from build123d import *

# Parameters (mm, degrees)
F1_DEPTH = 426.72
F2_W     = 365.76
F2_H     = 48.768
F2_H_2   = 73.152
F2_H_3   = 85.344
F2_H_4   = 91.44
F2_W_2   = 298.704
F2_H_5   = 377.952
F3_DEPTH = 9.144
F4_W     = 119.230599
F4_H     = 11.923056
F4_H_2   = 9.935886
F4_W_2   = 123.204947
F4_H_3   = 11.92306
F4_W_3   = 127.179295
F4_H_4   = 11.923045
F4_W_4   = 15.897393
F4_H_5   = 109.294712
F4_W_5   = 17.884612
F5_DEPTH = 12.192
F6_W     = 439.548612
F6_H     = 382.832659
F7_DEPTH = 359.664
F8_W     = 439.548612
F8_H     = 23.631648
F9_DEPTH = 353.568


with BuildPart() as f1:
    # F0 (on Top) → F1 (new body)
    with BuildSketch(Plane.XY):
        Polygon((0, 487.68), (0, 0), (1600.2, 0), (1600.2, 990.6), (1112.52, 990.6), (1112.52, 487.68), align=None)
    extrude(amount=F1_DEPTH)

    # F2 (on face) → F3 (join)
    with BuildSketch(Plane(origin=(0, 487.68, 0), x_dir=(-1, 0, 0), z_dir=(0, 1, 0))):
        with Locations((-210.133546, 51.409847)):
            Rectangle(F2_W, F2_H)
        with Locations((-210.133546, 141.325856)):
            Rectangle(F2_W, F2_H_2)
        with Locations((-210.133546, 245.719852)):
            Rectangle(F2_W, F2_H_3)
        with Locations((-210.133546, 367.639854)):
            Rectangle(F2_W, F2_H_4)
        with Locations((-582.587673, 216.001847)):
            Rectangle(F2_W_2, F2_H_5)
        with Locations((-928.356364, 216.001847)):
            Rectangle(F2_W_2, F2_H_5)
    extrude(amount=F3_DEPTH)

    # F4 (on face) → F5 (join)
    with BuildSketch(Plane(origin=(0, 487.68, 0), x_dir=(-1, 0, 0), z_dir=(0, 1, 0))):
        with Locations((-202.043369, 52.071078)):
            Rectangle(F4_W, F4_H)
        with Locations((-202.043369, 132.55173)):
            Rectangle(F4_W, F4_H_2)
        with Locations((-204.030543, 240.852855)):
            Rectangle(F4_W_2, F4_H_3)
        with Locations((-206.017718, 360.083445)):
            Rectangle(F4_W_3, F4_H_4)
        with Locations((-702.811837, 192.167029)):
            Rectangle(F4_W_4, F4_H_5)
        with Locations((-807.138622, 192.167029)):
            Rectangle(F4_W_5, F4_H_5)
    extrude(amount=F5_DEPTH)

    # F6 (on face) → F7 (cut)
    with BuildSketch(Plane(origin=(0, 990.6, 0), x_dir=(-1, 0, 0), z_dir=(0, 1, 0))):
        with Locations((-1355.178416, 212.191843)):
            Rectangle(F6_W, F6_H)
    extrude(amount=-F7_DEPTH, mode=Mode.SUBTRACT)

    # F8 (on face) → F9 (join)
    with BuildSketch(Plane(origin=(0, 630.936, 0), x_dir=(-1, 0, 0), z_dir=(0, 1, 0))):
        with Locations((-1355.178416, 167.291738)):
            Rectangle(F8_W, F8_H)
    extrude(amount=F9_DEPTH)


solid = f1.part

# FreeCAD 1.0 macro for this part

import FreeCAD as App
import Part
import Sketcher
Q = App.Units.Quantity

doc = App.newDocument("Part")
params = doc.addObject("Spreadsheet::Sheet", "Params")
for row, (alias, value) in enumerate([
    ("sketch1_width", "63 in"),
    ("sketch1_height", "39 in"),
    ("sketch1_width2", "19.2 in"),
    ("pad1_length", "16.8 in"),
    ("sketch2_width", "14.4 in"),
    ("sketch2_height", "3.6 in"),
    ("sketch2_width2", "11.76 in"),
    ("sketch2_height2", "1.92 in"),
    ("sketch2_height3", "2.88 in"),
    ("pad2_length", "0.36 in"),
    ("pad3_length", "0.48 in"),
    ("pocket1_length", "14.16 in"),
    ("pad4_length", "13.92 in"),
], start=1):
    params.set(f"A{row}", alias)
    params.set(f"B{row}", "=" + value)
    params.setAlias(f"B{row}", alias)

body = doc.addObject("PartDesign::Body", "Body")

sketch1 = body.newObject("Sketcher::SketchObject", "Sketch")
sketch1.AttachmentSupport = (doc.getObject("XY_Plane"), [""])
sketch1.MapMode = "FlatFace"
sketch1.addGeometry([
    Part.LineSegment(App.Vector(0, 488, 0), App.Vector(0, 0, 0)),
    Part.LineSegment(App.Vector(0, 0, 0), App.Vector(1600, 0, 0)),
    Part.LineSegment(App.Vector(1600, 0, 0), App.Vector(1600, 991, 0)),
    Part.LineSegment(App.Vector(1600, 991, 0), App.Vector(1113, 991, 0)),
    Part.LineSegment(App.Vector(1113, 991, 0), App.Vector(1113, 488, 0)),
    Part.LineSegment(App.Vector(1113, 488, 0), App.Vector(0, 488, 0)),
], False)
sketch1.addConstraint([
    Sketcher.Constraint("Coincident", 0, 2, 1, 1),
    Sketcher.Constraint("Coincident", 1, 2, 2, 1),
    Sketcher.Constraint("Coincident", 2, 2, 3, 1),
    Sketcher.Constraint("Coincident", 3, 2, 4, 1),
    Sketcher.Constraint("Coincident", 4, 2, 5, 1),
    Sketcher.Constraint("Coincident", 5, 2, 0, 1),
    Sketcher.Constraint("Vertical", 0),
    Sketcher.Constraint("Horizontal", 1),
    Sketcher.Constraint("Vertical", 2),
    Sketcher.Constraint("Horizontal", 3),
    Sketcher.Constraint("Vertical", 4),
    Sketcher.Constraint("Horizontal", 5),
    Sketcher.Constraint("Coincident", 0, 2, -1, 1),
    Sketcher.Constraint("Equal", 3, 0),
    Sketcher.Constraint("DistanceX", 1, 1, 1, 2, Q("63 in")),
    Sketcher.Constraint("DistanceY", 2, 1, 2, 2, Q("39 in")),
    Sketcher.Constraint("DistanceX", 3, 2, 3, 1, Q("19.2 in")),
])
sketch1.setExpression("Constraints[14]", "Params.sketch1_width")
sketch1.setExpression("Constraints[15]", "Params.sketch1_height")
sketch1.setExpression("Constraints[16]", "Params.sketch1_width2")
pad1 = body.newObject("PartDesign::Pad", "Pad")
pad1.Profile = sketch1
pad1.setExpression("Length", "Params.pad1_length")

sketch2 = body.newObject("Sketcher::SketchObject", "Sketch001")
sketch2.AttachmentSupport = (doc.getObject("XZ_Plane"), [""])
sketch2.MapMode = "FlatFace"
sketch2.AttachmentOffset = App.Placement(App.Vector(0, 0, -19.2 * 25.4), App.Rotation())
sketch2.addGeometry([
    Part.LineSegment(App.Vector(393, 76, 0), App.Vector(393, 27, 0)),
    Part.LineSegment(App.Vector(393, 27, 0), App.Vector(27, 27, 0)),
    Part.LineSegment(App.Vector(27, 27, 0), App.Vector(27, 76, 0)),
    Part.LineSegment(App.Vector(27, 76, 0), App.Vector(393, 76, 0)),
    Part.LineSegment(App.Vector(393, 178, 0), App.Vector(393, 105, 0)),
    Part.LineSegment(App.Vector(393, 105, 0), App.Vector(27, 105, 0)),
    Part.LineSegment(App.Vector(27, 105, 0), App.Vector(27, 178, 0)),
    Part.LineSegment(App.Vector(27, 178, 0), App.Vector(393, 178, 0)),
    Part.LineSegment(App.Vector(393, 288, 0), App.Vector(393, 203, 0)),
    Part.LineSegment(App.Vector(393, 203, 0), App.Vector(27, 203, 0)),
    Part.LineSegment(App.Vector(27, 203, 0), App.Vector(27, 288, 0)),
    Part.LineSegment(App.Vector(27, 288, 0), App.Vector(393, 288, 0)),
    Part.LineSegment(App.Vector(393, 413, 0), App.Vector(393, 322, 0)),
    Part.LineSegment(App.Vector(393, 322, 0), App.Vector(27, 322, 0)),
    Part.LineSegment(App.Vector(27, 322, 0), App.Vector(27, 413, 0)),
    Part.LineSegment(App.Vector(27, 413, 0), App.Vector(393, 413, 0)),
    Part.LineSegment(App.Vector(732, 405, 0), App.Vector(732, 27, 0)),
    Part.LineSegment(App.Vector(732, 27, 0), App.Vector(433, 27, 0)),
    Part.LineSegment(App.Vector(433, 27, 0), App.Vector(433, 405, 0)),
    Part.LineSegment(App.Vector(433, 405, 0), App.Vector(732, 405, 0)),
    Part.LineSegment(App.Vector(1078, 405, 0), App.Vector(1078, 27, 0)),
    Part.LineSegment(App.Vector(1078, 27, 0), App.Vector(779, 27, 0)),
    Part.LineSegment(App.Vector(779, 27, 0), App.Vector(779, 405, 0)),
    Part.LineSegment(App.Vector(779, 405, 0), App.Vector(1078, 405, 0)),
], False)
sketch2.addConstraint([
    Sketcher.Constraint("Coincident", 0, 2, 1, 1),
    Sketcher.Constraint("Coincident", 1, 2, 2, 1),
    Sketcher.Constraint("Coincident", 2, 2, 3, 1),
    Sketcher.Constraint("Coincident", 3, 2, 0, 1),
    Sketcher.Constraint("Coincident", 4, 2, 5, 1),
    Sketcher.Constraint("Coincident", 5, 2, 6, 1),
    Sketcher.Constraint("Coincident", 6, 2, 7, 1),
    Sketcher.Constraint("Coincident", 7, 2, 4, 1),
    Sketcher.Constraint("Coincident", 8, 2, 9, 1),
    Sketcher.Constraint("Coincident", 9, 2, 10, 1),
    Sketcher.Constraint("Coincident", 10, 2, 11, 1),
    Sketcher.Constraint("Coincident", 11, 2, 8, 1),
    Sketcher.Constraint("Coincident", 12, 2, 13, 1),
    Sketcher.Constraint("Coincident", 13, 2, 14, 1),
    Sketcher.Constraint("Coincident", 14, 2, 15, 1),
    Sketcher.Constraint("Coincident", 15, 2, 12, 1),
    Sketcher.Constraint("Coincident", 16, 2, 17, 1),
    Sketcher.Constraint("Coincident", 17, 2, 18, 1),
    Sketcher.Constraint("Coincident", 18, 2, 19, 1),
    Sketcher.Constraint("Coincident", 19, 2, 16, 1),
    Sketcher.Constraint("Coincident", 20, 2, 21, 1),
    Sketcher.Constraint("Coincident", 21, 2, 22, 1),
    Sketcher.Constraint("Coincident", 22, 2, 23, 1),
    Sketcher.Constraint("Coincident", 23, 2, 20, 1),
    Sketcher.Constraint("Vertical", 0),
    Sketcher.Constraint("Horizontal", 1),
    Sketcher.Constraint("Vertical", 2),
    Sketcher.Constraint("Horizontal", 3),
    Sketcher.Constraint("Vertical", 4),
    Sketcher.Constraint("Horizontal", 5),
    Sketcher.Constraint("Vertical", 6),
    Sketcher.Constraint("Horizontal", 7),
    Sketcher.Constraint("Vertical", 8),
    Sketcher.Constraint("Horizontal", 9),
    Sketcher.Constraint("Vertical", 10),
    Sketcher.Constraint("Horizontal", 11),
    Sketcher.Constraint("Vertical", 12),
    Sketcher.Constraint("Horizontal", 13),
    Sketcher.Constraint("Vertical", 14),
    Sketcher.Constraint("Horizontal", 15),
    Sketcher.Constraint("Vertical", 16),
    Sketcher.Constraint("Horizontal", 17),
    Sketcher.Constraint("Vertical", 18),
    Sketcher.Constraint("Horizontal", 19),
    Sketcher.Constraint("Vertical", 20),
    Sketcher.Constraint("Horizontal", 21),
    Sketcher.Constraint("Vertical", 22),
    Sketcher.Constraint("Horizontal", 23),
    Sketcher.Constraint("Horizontal", 1, 2, 16, 2),
    Sketcher.Constraint("Horizontal", 17, 2, 20, 2),
    Sketcher.Constraint("Horizontal", 19, 2, 22, 2),
    Sketcher.Constraint("Vertical", 3, 2, 4, 2),
    Sketcher.Constraint("Vertical", 2, 2, 5, 2),
    Sketcher.Constraint("Vertical", 7, 2, 8, 2),
    Sketcher.Constraint("Vertical", 6, 2, 9, 2),
    Sketcher.Constraint("Vertical", 11, 2, 12, 2),
    Sketcher.Constraint("Vertical", 10, 2, 13, 2),
    Sketcher.Constraint("Equal", 19, 21),
    Sketcher.Constraint("DistanceX", 1, 2, 1, 1, Q("14.4 in")),
    Sketcher.Constraint("DistanceY", 12, 2, 12, 1, Q("3.6 in")),
    Sketcher.Constraint("DistanceX", 17, 2, 17, 1, Q("11.76 in")),
    Sketcher.Constraint("DistanceY", 0, 2, 0, 1, Q("1.92 in")),
    Sketcher.Constraint("DistanceY", 4, 2, 4, 1, Q("2.88 in")),
    Sketcher.Constraint("DistanceY", 8, 2, 8, 1, Q("3.36 in")),
    Sketcher.Constraint("DistanceY", 16, 2, 16, 1, Q("14.88 in")),
    Sketcher.Constraint("DistanceY", 7, 2, 8, 2, Q("0.9899998 in")),
    Sketcher.Constraint("DistanceY", 3, 2, 8, 2, Q("5.0100002 in")),
    Sketcher.Constraint("DistanceY", 11, 2, 12, 2, Q("1.3200001 in")),
    Sketcher.Constraint("DistanceY", -1, 1, 8, 2, 203.047852),
    Sketcher.Constraint("DistanceX", 16, 2, 20, 2, 345.768691),
    Sketcher.Constraint("DistanceX", 0, 2, 20, 2, 684.694818),
    Sketcher.Constraint("DistanceX", -1, 1, 0, 2, 393.013546),
])
sketch2.setExpression("Constraints[58]", "Params.sketch2_width")
sketch2.setExpression("Constraints[59]", "Params.sketch2_height")
sketch2.setExpression("Constraints[60]", "Params.sketch2_width2")
sketch2.setExpression("Constraints[61]", "Params.sketch2_height2")
sketch2.setExpression("Constraints[62]", "Params.sketch2_height3")
pad2 = body.newObject("PartDesign::Pad", "Pad001")
pad2.Profile = sketch2
pad2.setExpression("Length", "Params.pad2_length")
pad2.Reversed = True

sketch3 = body.newObject("Sketcher::SketchObject", "Sketch002")
sketch3.AttachmentSupport = (doc.getObject("XZ_Plane"), [""])
sketch3.MapMode = "FlatFace"
sketch3.AttachmentOffset = App.Placement(App.Vector(0, 0, -19.2 * 25.4), App.Rotation())
sketch3.addGeometry([
    Part.LineSegment(App.Vector(262, 58, 0), App.Vector(262, 46, 0)),
    Part.LineSegment(App.Vector(262, 46, 0), App.Vector(142, 46, 0)),
    Part.LineSegment(App.Vector(142, 46, 0), App.Vector(142, 58, 0)),
    Part.LineSegment(App.Vector(142, 58, 0), App.Vector(262, 58, 0)),
    Part.LineSegment(App.Vector(262, 138, 0), App.Vector(262, 128, 0)),
    Part.LineSegment(App.Vector(262, 128, 0), App.Vector(142, 128, 0)),
    Part.LineSegment(App.Vector(142, 128, 0), App.Vector(142, 138, 0)),
    Part.LineSegment(App.Vector(142, 138, 0), App.Vector(262, 138, 0)),
    Part.LineSegment(App.Vector(266, 247, 0), App.Vector(266, 235, 0)),
    Part.LineSegment(App.Vector(266, 235, 0), App.Vector(142, 235, 0)),
    Part.LineSegment(App.Vector(142, 235, 0), App.Vector(142, 247, 0)),
    Part.LineSegment(App.Vector(142, 247, 0), App.Vector(266, 247, 0)),
    Part.LineSegment(App.Vector(270, 366, 0), App.Vector(270, 354, 0)),
    Part.LineSegment(App.Vector(270, 354, 0), App.Vector(142, 354, 0)),
    Part.LineSegment(App.Vector(142, 354, 0), App.Vector(142, 366, 0)),
    Part.LineSegment(App.Vector(142, 366, 0), App.Vector(270, 366, 0)),
    Part.LineSegment(App.Vector(711, 247, 0), App.Vector(711, 138, 0)),
    Part.LineSegment(App.Vector(711, 138, 0), App.Vector(695, 138, 0)),
    Part.LineSegment(App.Vector(695, 138, 0), App.Vector(695, 247, 0)),
    Part.LineSegment(App.Vector(695, 247, 0), App.Vector(711, 247, 0)),
    Part.LineSegment(App.Vector(816, 247, 0), App.Vector(816, 138, 0)),
    Part.LineSegment(App.Vector(816, 138, 0), App.Vector(798, 138, 0)),
    Part.LineSegment(App.Vector(798, 138, 0), App.Vector(798, 247, 0)),
    Part.LineSegment(App.Vector(798, 247, 0), App.Vector(816, 247, 0)),
], False)
sketch3.addConstraint([
    Sketcher.Constraint("Coincident", 0, 2, 1, 1),
    Sketcher.Constraint("Coincident", 1, 2, 2, 1),
    Sketcher.Constraint("Coincident", 2, 2, 3, 1),
    Sketcher.Constraint("Coincident", 3, 2, 0, 1),
    Sketcher.Constraint("Coincident", 4, 2, 5, 1),
    Sketcher.Constraint("Coincident", 5, 2, 6, 1),
    Sketcher.Constraint("Coincident", 6, 2, 7, 1),
    Sketcher.Constraint("Coincident", 7, 2, 4, 1),
    Sketcher.Constraint("Coincident", 8, 2, 9, 1),
    Sketcher.Constraint("Coincident", 9, 2, 10, 1),
    Sketcher.Constraint("Coincident", 10, 2, 11, 1),
    Sketcher.Constraint("Coincident", 11, 2, 8, 1),
    Sketcher.Constraint("Coincident", 12, 2, 13, 1),
    Sketcher.Constraint("Coincident", 13, 2, 14, 1),
    Sketcher.Constraint("Coincident", 14, 2, 15, 1),
    Sketcher.Constraint("Coincident", 15, 2, 12, 1),
    Sketcher.Constraint("Coincident", 16, 2, 17, 1),
    Sketcher.Constraint("Coincident", 17, 2, 18, 1),
    Sketcher.Constraint("Coincident", 18, 2, 19, 1),
    Sketcher.Constraint("Coincident", 19, 2, 16, 1),
    Sketcher.Constraint("Coincident", 20, 2, 21, 1),
    Sketcher.Constraint("Coincident", 21, 2, 22, 1),
    Sketcher.Constraint("Coincident", 22, 2, 23, 1),
    Sketcher.Constraint("Coincident", 23, 2, 20, 1),
    Sketcher.Constraint("Vertical", 0),
    Sketcher.Constraint("Horizontal", 1),
    Sketcher.Constraint("Vertical", 2),
    Sketcher.Constraint("Horizontal", 3),
    Sketcher.Constraint("Vertical", 4),
    Sketcher.Constraint("Horizontal", 5),
    Sketcher.Constraint("Vertical", 6),
    Sketcher.Constraint("Horizontal", 7),
    Sketcher.Constraint("Vertical", 8),
    Sketcher.Constraint("Horizontal", 9),
    Sketcher.Constraint("Vertical", 10),
    Sketcher.Constraint("Horizontal", 11),
    Sketcher.Constraint("Vertical", 12),
    Sketcher.Constraint("Horizontal", 13),
    Sketcher.Constraint("Vertical", 14),
    Sketcher.Constraint("Horizontal", 15),
    Sketcher.Constraint("Vertical", 16),
    Sketcher.Constraint("Horizontal", 17),
    Sketcher.Constraint("Vertical", 18),
    Sketcher.Constraint("Horizontal", 19),
    Sketcher.Constraint("Vertical", 20),
    Sketcher.Constraint("Horizontal", 21),
    Sketcher.Constraint("Vertical", 22),
    Sketcher.Constraint("Horizontal", 23),
    Sketcher.Constraint("Horizontal", 7, 2, 16, 2),
    Sketcher.Constraint("Horizontal", 11, 2, 18, 2),
    Sketcher.Constraint("Horizontal", 17, 2, 20, 2),
    Sketcher.Constraint("Horizontal", 19, 2, 22, 2),
    Sketcher.Constraint("Vertical", 3, 2, 4, 2),
    Sketcher.Constraint("Vertical", 2, 2, 5, 2),
    Sketcher.Constraint("Vertical", 6, 2, 9, 2),
    Sketcher.Constraint("Vertical", 10, 2, 13, 2),
    Sketcher.Constraint("DistanceX", 1, 2, 1, 1, 119.230599),
    Sketcher.Constraint("DistanceX", 21, 2, 21, 1, 17.884612),
    Sketcher.Constraint("DistanceY", 8, 2, 8, 1, 11.92306),
    Sketcher.Constraint("DistanceY", 16, 2, 16, 1, 109.294712),
    Sketcher.Constraint("DistanceX", 9, 2, 9, 1, 123.204947),
    Sketcher.Constraint("DistanceX", 13, 2, 13, 1, 127.179295),
    Sketcher.Constraint("DistanceX", 17, 2, 17, 1, 15.897393),
    Sketcher.Constraint("DistanceY", 0, 2, 0, 1, 11.923056),
    Sketcher.Constraint("DistanceY", 4, 2, 4, 1, 9.935886),
    Sketcher.Constraint("DistanceY", 12, 2, 12, 1, 11.923045),
    Sketcher.Constraint("DistanceX", -1, 1, 0, 2, 261.658668),
    Sketcher.Constraint("DistanceY", -1, 1, 0, 2, 46.10955),
    Sketcher.Constraint("DistanceX", -1, 1, 17, 2, 694.86314),
    Sketcher.Constraint("DistanceX", -1, 1, 20, 2, 816.080928),
    Sketcher.Constraint("DistanceY", 3, 2, 4, 2, 69.551181),
    Sketcher.Constraint("DistanceY", 7, 2, 12, 2, 216.602249),
])
pad3 = body.newObject("PartDesign::Pad", "Pad002")
pad3.Profile = sketch3
pad3.setExpression("Length", "Params.pad3_length")
pad3.Reversed = True

sketch4 = body.newObject("Sketcher::SketchObject", "Sketch003")
sketch4.AttachmentSupport = (doc.getObject("XZ_Plane"), [""])
sketch4.MapMode = "FlatFace"
sketch4.AttachmentOffset = App.Placement(App.Vector(0, 0, -39 * 25.4), App.Rotation())
sketch4.addGeometry([
    Part.LineSegment(App.Vector(1575, 404, 0), App.Vector(1575, 21, 0)),
    Part.LineSegment(App.Vector(1575, 21, 0), App.Vector(1135, 21, 0)),
    Part.LineSegment(App.Vector(1135, 21, 0), App.Vector(1135, 404, 0)),
    Part.LineSegment(App.Vector(1135, 404, 0), App.Vector(1575, 404, 0)),
], False)
sketch4.addConstraint([
    Sketcher.Constraint("Coincident", 0, 2, 1, 1),
    Sketcher.Constraint("Coincident", 1, 2, 2, 1),
    Sketcher.Constraint("Coincident", 2, 2, 3, 1),
    Sketcher.Constraint("Coincident", 3, 2, 0, 1),
    Sketcher.Constraint("Vertical", 0),
    Sketcher.Constraint("Horizontal", 1),
    Sketcher.Constraint("Vertical", 2),
    Sketcher.Constraint("Horizontal", 3),
    Sketcher.Constraint("DistanceY", 0, 2, 0, 1, 382.832659),
    Sketcher.Constraint("DistanceX", 1, 2, 1, 1, 439.548612),
    Sketcher.Constraint("DistanceX", -1, 1, 0, 2, 1574.952722),
    Sketcher.Constraint("DistanceY", -1, 1, 0, 2, 20.775513),
])
pocket1 = body.newObject("PartDesign::Pocket", "Pocket")
pocket1.Profile = sketch4
pocket1.setExpression("Length", "Params.pocket1_length")
pocket1.Reversed = True

sketch5 = body.newObject("Sketcher::SketchObject", "Sketch004")
sketch5.AttachmentSupport = (doc.getObject("XZ_Plane"), [""])
sketch5.MapMode = "FlatFace"
sketch5.AttachmentOffset = App.Placement(App.Vector(0, 0, -24.84 * 25.4), App.Rotation())
sketch5.addGeometry([
    Part.LineSegment(App.Vector(1575, 179, 0), App.Vector(1575, 155, 0)),
    Part.LineSegment(App.Vector(1575, 155, 0), App.Vector(1135, 155, 0)),
    Part.LineSegment(App.Vector(1135, 155, 0), App.Vector(1135, 179, 0)),
    Part.LineSegment(App.Vector(1135, 179, 0), App.Vector(1575, 179, 0)),
], False)
sketch5.addConstraint([
    Sketcher.Constraint("Coincident", 0, 2, 1, 1),
    Sketcher.Constraint("Coincident", 1, 2, 2, 1),
    Sketcher.Constraint("Coincident", 2, 2, 3, 1),
    Sketcher.Constraint("Coincident", 3, 2, 0, 1),
    Sketcher.Constraint("Vertical", 0),
    Sketcher.Constraint("Horizontal", 1),
    Sketcher.Constraint("Vertical", 2),
    Sketcher.Constraint("Horizontal", 3),
    Sketcher.Constraint("DistanceY", 0, 2, 0, 1, 23.631648),
    Sketcher.Constraint("DistanceX", 1, 2, 1, 1, 439.548612),
    Sketcher.Constraint("DistanceX", -1, 1, 0, 2, 1574.952722),
    Sketcher.Constraint("DistanceY", -1, 1, 2, 2, 179.107562),
])
pad4 = body.newObject("PartDesign::Pad", "Pad003")
pad4.Profile = sketch5
pad4.setExpression("Length", "Params.pad4_length")
pad4.Reversed = True

doc.recompute()
